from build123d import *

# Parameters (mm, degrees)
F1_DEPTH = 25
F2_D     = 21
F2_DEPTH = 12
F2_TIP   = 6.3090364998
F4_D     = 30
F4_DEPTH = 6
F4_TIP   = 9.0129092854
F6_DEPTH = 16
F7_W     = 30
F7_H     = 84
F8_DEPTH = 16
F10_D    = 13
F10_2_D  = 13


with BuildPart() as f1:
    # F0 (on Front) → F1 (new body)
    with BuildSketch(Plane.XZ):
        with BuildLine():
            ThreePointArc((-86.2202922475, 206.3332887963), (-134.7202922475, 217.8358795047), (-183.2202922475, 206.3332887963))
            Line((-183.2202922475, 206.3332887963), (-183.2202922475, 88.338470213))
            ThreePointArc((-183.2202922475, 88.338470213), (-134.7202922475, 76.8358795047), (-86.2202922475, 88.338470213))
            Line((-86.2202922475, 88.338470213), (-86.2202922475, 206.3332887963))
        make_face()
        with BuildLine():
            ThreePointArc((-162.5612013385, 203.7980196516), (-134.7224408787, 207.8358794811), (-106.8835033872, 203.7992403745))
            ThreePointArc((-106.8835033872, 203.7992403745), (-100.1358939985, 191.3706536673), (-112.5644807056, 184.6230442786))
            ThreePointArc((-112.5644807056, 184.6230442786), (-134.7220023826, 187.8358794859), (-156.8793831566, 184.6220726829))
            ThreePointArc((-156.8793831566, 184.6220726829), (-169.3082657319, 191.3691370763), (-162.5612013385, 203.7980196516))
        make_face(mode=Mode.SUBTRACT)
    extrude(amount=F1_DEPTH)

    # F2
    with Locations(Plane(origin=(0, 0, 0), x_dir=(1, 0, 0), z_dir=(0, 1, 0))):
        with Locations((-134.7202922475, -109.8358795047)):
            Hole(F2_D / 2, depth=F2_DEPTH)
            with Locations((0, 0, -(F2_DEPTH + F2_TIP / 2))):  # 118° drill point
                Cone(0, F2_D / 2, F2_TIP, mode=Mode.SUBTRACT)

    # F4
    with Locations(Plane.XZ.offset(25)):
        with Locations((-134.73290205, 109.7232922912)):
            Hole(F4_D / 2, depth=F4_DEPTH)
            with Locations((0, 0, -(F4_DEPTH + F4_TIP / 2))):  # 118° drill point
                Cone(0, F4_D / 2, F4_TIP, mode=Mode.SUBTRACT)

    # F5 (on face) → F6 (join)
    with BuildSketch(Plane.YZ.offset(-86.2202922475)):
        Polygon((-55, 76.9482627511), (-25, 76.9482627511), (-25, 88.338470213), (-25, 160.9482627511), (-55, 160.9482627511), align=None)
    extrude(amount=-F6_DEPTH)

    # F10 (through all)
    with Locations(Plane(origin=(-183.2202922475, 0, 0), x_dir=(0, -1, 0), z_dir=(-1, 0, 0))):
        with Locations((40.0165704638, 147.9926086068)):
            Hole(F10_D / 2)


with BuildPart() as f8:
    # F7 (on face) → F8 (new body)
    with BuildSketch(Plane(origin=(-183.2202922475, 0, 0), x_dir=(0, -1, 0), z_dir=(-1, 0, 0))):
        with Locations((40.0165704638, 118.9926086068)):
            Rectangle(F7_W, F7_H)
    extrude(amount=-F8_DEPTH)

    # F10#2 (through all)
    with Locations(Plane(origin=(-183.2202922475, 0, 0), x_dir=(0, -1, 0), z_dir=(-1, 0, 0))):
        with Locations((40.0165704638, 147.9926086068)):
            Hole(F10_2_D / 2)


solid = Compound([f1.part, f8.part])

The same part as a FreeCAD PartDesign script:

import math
import FreeCAD as App
import Part
import Sketcher
from FreeCAD import Vector
Q = App.Units.Quantity


def add_polygon(sketch, points):
    """Adds a closed chain of lines whose ends are joined by coincident constraints."""
    first, n = sketch.GeometryCount, len(points)
    for a, b in zip(points, points[1:] + points[:1]):
        sketch.addGeometry(Part.LineSegment(App.Vector(*a, 0), App.Vector(*b, 0)), False)
    for i in range(n):
        sketch.addConstraint(Sketcher.Constraint("Coincident", first + i, 2, first + (i + 1) % n, 1))

doc = App.newDocument("Part")
body = doc.addObject("PartDesign::Body", "Body")

sketch1 = body.newObject("Sketcher::SketchObject", "Sketch")
sketch1.AttachmentSupport = (doc.getObject("XZ_Plane"), [""])
sketch1.MapMode = "FlatFace"
sketch1.addGeometry([
    Part.ArcOfCircle(Part.Circle(Vector(-135, 110, 0), Vector(0, 0, 1), 108), math.radians(63), math.radians(117)),
    Part.LineSegment(Vector(-183, 206, 0), Vector(-183, 88, 0)),
    Part.ArcOfCircle(Part.Circle(Vector(-135, 185, 0), Vector(0, 0, 1), 108), math.radians(-117), math.radians(-63)),
    Part.LineSegment(Vector(-86, 88, 0), Vector(-86, 206, 0)),
    Part.ArcOfCircle(Part.Circle(Vector(-160, 194, 0), Vector(0, 0, 1), 10), math.radians(107), math.radians(287)),
    Part.ArcOfCircle(Part.Circle(Vector(-135, 110, 0), Vector(0, 0, 1), 98), math.radians(73), math.radians(107)),
    Part.ArcOfCircle(Part.Circle(Vector(-110, 194, 0), Vector(0, 0, 1), 10), math.radians(-107), math.radians(73)),
    Part.ArcOfCircle(Part.Circle(Vector(-135, 110, 0), Vector(0, 0, 1), 78), math.radians(73), math.radians(107)),
], False)
sketch1.addConstraint([
    Sketcher.Constraint("Coincident", 0, 2, 1, 1),
    Sketcher.Constraint("Coincident", 1, 2, 2, 1),
    Sketcher.Constraint("Coincident", 2, 2, 3, 1),
    Sketcher.Constraint("Coincident", 3, 2, 0, 1),
    Sketcher.Constraint("Tangent", 4, 1, 5, 2),
    Sketcher.Constraint("Tangent", 5, 1, 6, 2),
    Sketcher.Constraint("Tangent", 6, 1, 7, 1),
    Sketcher.Constraint("Tangent", 7, 2, 4, 2),
    Sketcher.Constraint("Vertical", 1),
    Sketcher.Constraint("Vertical", 3),
    Sketcher.Constraint("Coincident", 5, 3, 0, 3),
    Sketcher.Constraint("Coincident", 7, 3, 0, 3),
    Sketcher.Constraint("Equal", 0, 2),
    Sketcher.Constraint("Horizontal", 1, 2, 2, 2),
    Sketcher.Constraint("Horizontal", 0, 2, 3, 2),
    Sketcher.Constraint("Radius", 0, Q("108 mm")),
    Sketcher.Constraint("Radius", 4, Q("10 mm")),
    Sketcher.Constraint("Radius", 5, Q("98 mm")),
    Sketcher.Constraint("DistanceY", 0, 3, 2, 3, Q("75 mm")),
    Sketcher.Constraint("DistanceX", 4, 3, 2, 3, Q("25 mm")),
    Sketcher.Constraint("DistanceX", 1, 2, 2, 2, Q("97 mm")),
    Sketcher.Constraint("DistanceY", 6, 1, 4, 3, Q("9.587002 mm")),
    Sketcher.Constraint("DistanceX", 4, 1, -1, 1, Q("162.561201 mm")),
    Sketcher.Constraint("DistanceY", -1, 1, 0, 3, Q("109.83588 mm")),
])
pad1 = body.newObject("PartDesign::Pad", "Pad")
pad1.Profile = sketch1
pad1.Length = 25

sketch2 = body.newObject("Sketcher::SketchObject", "Sketch001")
sketch2.AttachmentSupport = (doc.getObject("XZ_Plane"), [""])
sketch2.MapMode = "FlatFace"
sketch2.addGeometry(Part.Circle(Vector(-135, 110, 0), Vector(0, 0, 1), 10), False)
sketch2.addConstraint([
    Sketcher.Constraint("Diameter", 0, Q("21 mm")),
    Sketcher.Constraint("DistanceY", -1, 1, 0, 3, Q("109.83588 mm")),
    Sketcher.Constraint("DistanceX", 0, 3, -1, 1, Q("134.720292 mm")),
])
doc.recompute()
hole = body.newObject("PartDesign::Hole", "Hole")
hole.Profile = sketch2
hole.ThreadType = "None"
hole.Diameter = 21
hole.DepthType = "Dimension"
hole.Depth = 12
hole.DrillPoint = "Angled"
hole.DrillPointAngle = 118
hole.Reversed = True

sketch3 = body.newObject("Sketcher::SketchObject", "Sketch002")
sketch3.AttachmentSupport = (doc.getObject("XZ_Plane"), [""])
sketch3.MapMode = "FlatFace"
sketch3.AttachmentOffset = App.Placement(Vector(0, 0, 25), App.Rotation())
sketch3.addGeometry(Part.Circle(Vector(-135, 110, 0), Vector(0, 0, 1), 15), False)
sketch3.addConstraint([
    Sketcher.Constraint("Diameter", 0, Q("30 mm")),
    Sketcher.Constraint("DistanceX", 0, 3, -1, 1, Q("134.732902 mm")),
    Sketcher.Constraint("DistanceY", -1, 1, 0, 3, Q("109.723292 mm")),
])
doc.recompute()
hole2 = body.newObject("PartDesign::Hole", "Hole001")
hole2.Profile = sketch3
hole2.ThreadType = "None"
hole2.Diameter = 30
hole2.DepthType = "Dimension"
hole2.Depth = 6
hole2.DrillPoint = "Angled"
hole2.DrillPointAngle = 118

sketch4 = body.newObject("Sketcher::SketchObject", "Sketch003")
sketch4.AttachmentSupport = (doc.getObject("YZ_Plane"), [""])
sketch4.MapMode = "FlatFace"
sketch4.AttachmentOffset = App.Placement(Vector(0, 0, -86.220292), App.Rotation())
add_polygon(sketch4, [(-55, 77), (-25, 77), (-25, 161), (-55, 161)])
sketch4.addConstraint([
    Sketcher.Constraint("Horizontal", 0),
    Sketcher.Constraint("Vertical", 1),
    Sketcher.Constraint("Horizontal", 2),
    Sketcher.Constraint("Vertical", 3),
    Sketcher.Constraint("DistanceX", 0, 1, 0, 2, Q("30 mm")),
    Sketcher.Constraint("DistanceY", 1, 1, 1, 2, Q("84 mm")),
    Sketcher.Constraint("DistanceX", 0, 2, -1, 1, Q("25 mm")),
    Sketcher.Constraint("DistanceY", -1, 1, 0, 2, Q("76.948263 mm")),
])
pad2 = body.newObject("PartDesign::Pad", "Pad001")
pad2.Profile = sketch4
pad2.Length = 16
pad2.Reversed = True

sketch5 = body.newObject("Sketcher::SketchObject", "Sketch004")
sketch5.AttachmentSupport = (doc.getObject("YZ_Plane"), [""])
sketch5.MapMode = "FlatFace"
sketch5.AttachmentOffset = App.Placement(Vector(0, 0, -183.220292), App.Rotation())
sketch5.addGeometry(Part.Circle(Vector(-40, 148, 0), Vector(0, 0, 1), 6), False)
sketch5.addConstraint([
    Sketcher.Constraint("Diameter", 0, Q("13 mm")),
    Sketcher.Constraint("DistanceX", 0, 3, -1, 1, Q("40.01657 mm")),
    Sketcher.Constraint("DistanceY", -1, 1, 0, 3, Q("147.992609 mm")),
])
doc.recompute()
hole3 = body.newObject("PartDesign::Hole", "Hole002")
hole3.Profile = sketch5
hole3.ThreadType = "None"
hole3.Diameter = 13
hole3.DepthType = "ThroughAll"
hole3.Reversed = True
body2 = doc.addObject("PartDesign::Body", "Body001")

sketch6 = body2.newObject("Sketcher::SketchObject", "Sketch005")
sketch6.AttachmentSupport = (doc.getObject("YZ_Plane001"), [""])
sketch6.MapMode = "FlatFace"
sketch6.AttachmentOffset = App.Placement(Vector(0, 0, -183.220292), App.Rotation())
add_polygon(sketch6, [(-25, 161), (-25, 77), (-55, 77), (-55, 161)])
sketch6.addConstraint([
    Sketcher.Constraint("Vertical", 0),
    Sketcher.Constraint("Horizontal", 1),
    Sketcher.Constraint("Vertical", 2),
    Sketcher.Constraint("Horizontal", 3),
    Sketcher.Constraint("DistanceX", 1, 2, 1, 1, Q("30 mm")),
    Sketcher.Constraint("DistanceY", 0, 2, 0, 1, Q("84 mm")),
    Sketcher.Constraint("DistanceX", 0, 2, -1, 1, Q("25.01657 mm")),
    Sketcher.Constraint("DistanceY", -1, 1, 0, 2, Q("76.992609 mm")),
])
pad3 = body2.newObject("PartDesign::Pad", "Pad002")
pad3.Profile = sketch6
pad3.Length = 16

sketch7 = body2.newObject("Sketcher::SketchObject", "Sketch006")
sketch7.AttachmentSupport = (doc.getObject("YZ_Plane001"), [""])
sketch7.MapMode = "FlatFace"
sketch7.AttachmentOffset = App.Placement(Vector(0, 0, -183.220292), App.Rotation())
sketch7.addGeometry(Part.Circle(Vector(-40, 148, 0), Vector(0, 0, 1), 6), False)
sketch7.addConstraint([
    Sketcher.Constraint("Diameter", 0, Q("13 mm")),
    Sketcher.Constraint("DistanceX", 0, 3, -1, 1, Q("40.01657 mm")),
    Sketcher.Constraint("DistanceY", -1, 1, 0, 3, Q("147.992609 mm")),
])
doc.recompute()
hole4 = body2.newObject("PartDesign::Hole", "Hole003")
hole4.Profile = sketch7
hole4.ThreadType = "None"
hole4.Diameter = 13
hole4.DepthType = "ThroughAll"
hole4.Reversed = True

doc.recompute()
